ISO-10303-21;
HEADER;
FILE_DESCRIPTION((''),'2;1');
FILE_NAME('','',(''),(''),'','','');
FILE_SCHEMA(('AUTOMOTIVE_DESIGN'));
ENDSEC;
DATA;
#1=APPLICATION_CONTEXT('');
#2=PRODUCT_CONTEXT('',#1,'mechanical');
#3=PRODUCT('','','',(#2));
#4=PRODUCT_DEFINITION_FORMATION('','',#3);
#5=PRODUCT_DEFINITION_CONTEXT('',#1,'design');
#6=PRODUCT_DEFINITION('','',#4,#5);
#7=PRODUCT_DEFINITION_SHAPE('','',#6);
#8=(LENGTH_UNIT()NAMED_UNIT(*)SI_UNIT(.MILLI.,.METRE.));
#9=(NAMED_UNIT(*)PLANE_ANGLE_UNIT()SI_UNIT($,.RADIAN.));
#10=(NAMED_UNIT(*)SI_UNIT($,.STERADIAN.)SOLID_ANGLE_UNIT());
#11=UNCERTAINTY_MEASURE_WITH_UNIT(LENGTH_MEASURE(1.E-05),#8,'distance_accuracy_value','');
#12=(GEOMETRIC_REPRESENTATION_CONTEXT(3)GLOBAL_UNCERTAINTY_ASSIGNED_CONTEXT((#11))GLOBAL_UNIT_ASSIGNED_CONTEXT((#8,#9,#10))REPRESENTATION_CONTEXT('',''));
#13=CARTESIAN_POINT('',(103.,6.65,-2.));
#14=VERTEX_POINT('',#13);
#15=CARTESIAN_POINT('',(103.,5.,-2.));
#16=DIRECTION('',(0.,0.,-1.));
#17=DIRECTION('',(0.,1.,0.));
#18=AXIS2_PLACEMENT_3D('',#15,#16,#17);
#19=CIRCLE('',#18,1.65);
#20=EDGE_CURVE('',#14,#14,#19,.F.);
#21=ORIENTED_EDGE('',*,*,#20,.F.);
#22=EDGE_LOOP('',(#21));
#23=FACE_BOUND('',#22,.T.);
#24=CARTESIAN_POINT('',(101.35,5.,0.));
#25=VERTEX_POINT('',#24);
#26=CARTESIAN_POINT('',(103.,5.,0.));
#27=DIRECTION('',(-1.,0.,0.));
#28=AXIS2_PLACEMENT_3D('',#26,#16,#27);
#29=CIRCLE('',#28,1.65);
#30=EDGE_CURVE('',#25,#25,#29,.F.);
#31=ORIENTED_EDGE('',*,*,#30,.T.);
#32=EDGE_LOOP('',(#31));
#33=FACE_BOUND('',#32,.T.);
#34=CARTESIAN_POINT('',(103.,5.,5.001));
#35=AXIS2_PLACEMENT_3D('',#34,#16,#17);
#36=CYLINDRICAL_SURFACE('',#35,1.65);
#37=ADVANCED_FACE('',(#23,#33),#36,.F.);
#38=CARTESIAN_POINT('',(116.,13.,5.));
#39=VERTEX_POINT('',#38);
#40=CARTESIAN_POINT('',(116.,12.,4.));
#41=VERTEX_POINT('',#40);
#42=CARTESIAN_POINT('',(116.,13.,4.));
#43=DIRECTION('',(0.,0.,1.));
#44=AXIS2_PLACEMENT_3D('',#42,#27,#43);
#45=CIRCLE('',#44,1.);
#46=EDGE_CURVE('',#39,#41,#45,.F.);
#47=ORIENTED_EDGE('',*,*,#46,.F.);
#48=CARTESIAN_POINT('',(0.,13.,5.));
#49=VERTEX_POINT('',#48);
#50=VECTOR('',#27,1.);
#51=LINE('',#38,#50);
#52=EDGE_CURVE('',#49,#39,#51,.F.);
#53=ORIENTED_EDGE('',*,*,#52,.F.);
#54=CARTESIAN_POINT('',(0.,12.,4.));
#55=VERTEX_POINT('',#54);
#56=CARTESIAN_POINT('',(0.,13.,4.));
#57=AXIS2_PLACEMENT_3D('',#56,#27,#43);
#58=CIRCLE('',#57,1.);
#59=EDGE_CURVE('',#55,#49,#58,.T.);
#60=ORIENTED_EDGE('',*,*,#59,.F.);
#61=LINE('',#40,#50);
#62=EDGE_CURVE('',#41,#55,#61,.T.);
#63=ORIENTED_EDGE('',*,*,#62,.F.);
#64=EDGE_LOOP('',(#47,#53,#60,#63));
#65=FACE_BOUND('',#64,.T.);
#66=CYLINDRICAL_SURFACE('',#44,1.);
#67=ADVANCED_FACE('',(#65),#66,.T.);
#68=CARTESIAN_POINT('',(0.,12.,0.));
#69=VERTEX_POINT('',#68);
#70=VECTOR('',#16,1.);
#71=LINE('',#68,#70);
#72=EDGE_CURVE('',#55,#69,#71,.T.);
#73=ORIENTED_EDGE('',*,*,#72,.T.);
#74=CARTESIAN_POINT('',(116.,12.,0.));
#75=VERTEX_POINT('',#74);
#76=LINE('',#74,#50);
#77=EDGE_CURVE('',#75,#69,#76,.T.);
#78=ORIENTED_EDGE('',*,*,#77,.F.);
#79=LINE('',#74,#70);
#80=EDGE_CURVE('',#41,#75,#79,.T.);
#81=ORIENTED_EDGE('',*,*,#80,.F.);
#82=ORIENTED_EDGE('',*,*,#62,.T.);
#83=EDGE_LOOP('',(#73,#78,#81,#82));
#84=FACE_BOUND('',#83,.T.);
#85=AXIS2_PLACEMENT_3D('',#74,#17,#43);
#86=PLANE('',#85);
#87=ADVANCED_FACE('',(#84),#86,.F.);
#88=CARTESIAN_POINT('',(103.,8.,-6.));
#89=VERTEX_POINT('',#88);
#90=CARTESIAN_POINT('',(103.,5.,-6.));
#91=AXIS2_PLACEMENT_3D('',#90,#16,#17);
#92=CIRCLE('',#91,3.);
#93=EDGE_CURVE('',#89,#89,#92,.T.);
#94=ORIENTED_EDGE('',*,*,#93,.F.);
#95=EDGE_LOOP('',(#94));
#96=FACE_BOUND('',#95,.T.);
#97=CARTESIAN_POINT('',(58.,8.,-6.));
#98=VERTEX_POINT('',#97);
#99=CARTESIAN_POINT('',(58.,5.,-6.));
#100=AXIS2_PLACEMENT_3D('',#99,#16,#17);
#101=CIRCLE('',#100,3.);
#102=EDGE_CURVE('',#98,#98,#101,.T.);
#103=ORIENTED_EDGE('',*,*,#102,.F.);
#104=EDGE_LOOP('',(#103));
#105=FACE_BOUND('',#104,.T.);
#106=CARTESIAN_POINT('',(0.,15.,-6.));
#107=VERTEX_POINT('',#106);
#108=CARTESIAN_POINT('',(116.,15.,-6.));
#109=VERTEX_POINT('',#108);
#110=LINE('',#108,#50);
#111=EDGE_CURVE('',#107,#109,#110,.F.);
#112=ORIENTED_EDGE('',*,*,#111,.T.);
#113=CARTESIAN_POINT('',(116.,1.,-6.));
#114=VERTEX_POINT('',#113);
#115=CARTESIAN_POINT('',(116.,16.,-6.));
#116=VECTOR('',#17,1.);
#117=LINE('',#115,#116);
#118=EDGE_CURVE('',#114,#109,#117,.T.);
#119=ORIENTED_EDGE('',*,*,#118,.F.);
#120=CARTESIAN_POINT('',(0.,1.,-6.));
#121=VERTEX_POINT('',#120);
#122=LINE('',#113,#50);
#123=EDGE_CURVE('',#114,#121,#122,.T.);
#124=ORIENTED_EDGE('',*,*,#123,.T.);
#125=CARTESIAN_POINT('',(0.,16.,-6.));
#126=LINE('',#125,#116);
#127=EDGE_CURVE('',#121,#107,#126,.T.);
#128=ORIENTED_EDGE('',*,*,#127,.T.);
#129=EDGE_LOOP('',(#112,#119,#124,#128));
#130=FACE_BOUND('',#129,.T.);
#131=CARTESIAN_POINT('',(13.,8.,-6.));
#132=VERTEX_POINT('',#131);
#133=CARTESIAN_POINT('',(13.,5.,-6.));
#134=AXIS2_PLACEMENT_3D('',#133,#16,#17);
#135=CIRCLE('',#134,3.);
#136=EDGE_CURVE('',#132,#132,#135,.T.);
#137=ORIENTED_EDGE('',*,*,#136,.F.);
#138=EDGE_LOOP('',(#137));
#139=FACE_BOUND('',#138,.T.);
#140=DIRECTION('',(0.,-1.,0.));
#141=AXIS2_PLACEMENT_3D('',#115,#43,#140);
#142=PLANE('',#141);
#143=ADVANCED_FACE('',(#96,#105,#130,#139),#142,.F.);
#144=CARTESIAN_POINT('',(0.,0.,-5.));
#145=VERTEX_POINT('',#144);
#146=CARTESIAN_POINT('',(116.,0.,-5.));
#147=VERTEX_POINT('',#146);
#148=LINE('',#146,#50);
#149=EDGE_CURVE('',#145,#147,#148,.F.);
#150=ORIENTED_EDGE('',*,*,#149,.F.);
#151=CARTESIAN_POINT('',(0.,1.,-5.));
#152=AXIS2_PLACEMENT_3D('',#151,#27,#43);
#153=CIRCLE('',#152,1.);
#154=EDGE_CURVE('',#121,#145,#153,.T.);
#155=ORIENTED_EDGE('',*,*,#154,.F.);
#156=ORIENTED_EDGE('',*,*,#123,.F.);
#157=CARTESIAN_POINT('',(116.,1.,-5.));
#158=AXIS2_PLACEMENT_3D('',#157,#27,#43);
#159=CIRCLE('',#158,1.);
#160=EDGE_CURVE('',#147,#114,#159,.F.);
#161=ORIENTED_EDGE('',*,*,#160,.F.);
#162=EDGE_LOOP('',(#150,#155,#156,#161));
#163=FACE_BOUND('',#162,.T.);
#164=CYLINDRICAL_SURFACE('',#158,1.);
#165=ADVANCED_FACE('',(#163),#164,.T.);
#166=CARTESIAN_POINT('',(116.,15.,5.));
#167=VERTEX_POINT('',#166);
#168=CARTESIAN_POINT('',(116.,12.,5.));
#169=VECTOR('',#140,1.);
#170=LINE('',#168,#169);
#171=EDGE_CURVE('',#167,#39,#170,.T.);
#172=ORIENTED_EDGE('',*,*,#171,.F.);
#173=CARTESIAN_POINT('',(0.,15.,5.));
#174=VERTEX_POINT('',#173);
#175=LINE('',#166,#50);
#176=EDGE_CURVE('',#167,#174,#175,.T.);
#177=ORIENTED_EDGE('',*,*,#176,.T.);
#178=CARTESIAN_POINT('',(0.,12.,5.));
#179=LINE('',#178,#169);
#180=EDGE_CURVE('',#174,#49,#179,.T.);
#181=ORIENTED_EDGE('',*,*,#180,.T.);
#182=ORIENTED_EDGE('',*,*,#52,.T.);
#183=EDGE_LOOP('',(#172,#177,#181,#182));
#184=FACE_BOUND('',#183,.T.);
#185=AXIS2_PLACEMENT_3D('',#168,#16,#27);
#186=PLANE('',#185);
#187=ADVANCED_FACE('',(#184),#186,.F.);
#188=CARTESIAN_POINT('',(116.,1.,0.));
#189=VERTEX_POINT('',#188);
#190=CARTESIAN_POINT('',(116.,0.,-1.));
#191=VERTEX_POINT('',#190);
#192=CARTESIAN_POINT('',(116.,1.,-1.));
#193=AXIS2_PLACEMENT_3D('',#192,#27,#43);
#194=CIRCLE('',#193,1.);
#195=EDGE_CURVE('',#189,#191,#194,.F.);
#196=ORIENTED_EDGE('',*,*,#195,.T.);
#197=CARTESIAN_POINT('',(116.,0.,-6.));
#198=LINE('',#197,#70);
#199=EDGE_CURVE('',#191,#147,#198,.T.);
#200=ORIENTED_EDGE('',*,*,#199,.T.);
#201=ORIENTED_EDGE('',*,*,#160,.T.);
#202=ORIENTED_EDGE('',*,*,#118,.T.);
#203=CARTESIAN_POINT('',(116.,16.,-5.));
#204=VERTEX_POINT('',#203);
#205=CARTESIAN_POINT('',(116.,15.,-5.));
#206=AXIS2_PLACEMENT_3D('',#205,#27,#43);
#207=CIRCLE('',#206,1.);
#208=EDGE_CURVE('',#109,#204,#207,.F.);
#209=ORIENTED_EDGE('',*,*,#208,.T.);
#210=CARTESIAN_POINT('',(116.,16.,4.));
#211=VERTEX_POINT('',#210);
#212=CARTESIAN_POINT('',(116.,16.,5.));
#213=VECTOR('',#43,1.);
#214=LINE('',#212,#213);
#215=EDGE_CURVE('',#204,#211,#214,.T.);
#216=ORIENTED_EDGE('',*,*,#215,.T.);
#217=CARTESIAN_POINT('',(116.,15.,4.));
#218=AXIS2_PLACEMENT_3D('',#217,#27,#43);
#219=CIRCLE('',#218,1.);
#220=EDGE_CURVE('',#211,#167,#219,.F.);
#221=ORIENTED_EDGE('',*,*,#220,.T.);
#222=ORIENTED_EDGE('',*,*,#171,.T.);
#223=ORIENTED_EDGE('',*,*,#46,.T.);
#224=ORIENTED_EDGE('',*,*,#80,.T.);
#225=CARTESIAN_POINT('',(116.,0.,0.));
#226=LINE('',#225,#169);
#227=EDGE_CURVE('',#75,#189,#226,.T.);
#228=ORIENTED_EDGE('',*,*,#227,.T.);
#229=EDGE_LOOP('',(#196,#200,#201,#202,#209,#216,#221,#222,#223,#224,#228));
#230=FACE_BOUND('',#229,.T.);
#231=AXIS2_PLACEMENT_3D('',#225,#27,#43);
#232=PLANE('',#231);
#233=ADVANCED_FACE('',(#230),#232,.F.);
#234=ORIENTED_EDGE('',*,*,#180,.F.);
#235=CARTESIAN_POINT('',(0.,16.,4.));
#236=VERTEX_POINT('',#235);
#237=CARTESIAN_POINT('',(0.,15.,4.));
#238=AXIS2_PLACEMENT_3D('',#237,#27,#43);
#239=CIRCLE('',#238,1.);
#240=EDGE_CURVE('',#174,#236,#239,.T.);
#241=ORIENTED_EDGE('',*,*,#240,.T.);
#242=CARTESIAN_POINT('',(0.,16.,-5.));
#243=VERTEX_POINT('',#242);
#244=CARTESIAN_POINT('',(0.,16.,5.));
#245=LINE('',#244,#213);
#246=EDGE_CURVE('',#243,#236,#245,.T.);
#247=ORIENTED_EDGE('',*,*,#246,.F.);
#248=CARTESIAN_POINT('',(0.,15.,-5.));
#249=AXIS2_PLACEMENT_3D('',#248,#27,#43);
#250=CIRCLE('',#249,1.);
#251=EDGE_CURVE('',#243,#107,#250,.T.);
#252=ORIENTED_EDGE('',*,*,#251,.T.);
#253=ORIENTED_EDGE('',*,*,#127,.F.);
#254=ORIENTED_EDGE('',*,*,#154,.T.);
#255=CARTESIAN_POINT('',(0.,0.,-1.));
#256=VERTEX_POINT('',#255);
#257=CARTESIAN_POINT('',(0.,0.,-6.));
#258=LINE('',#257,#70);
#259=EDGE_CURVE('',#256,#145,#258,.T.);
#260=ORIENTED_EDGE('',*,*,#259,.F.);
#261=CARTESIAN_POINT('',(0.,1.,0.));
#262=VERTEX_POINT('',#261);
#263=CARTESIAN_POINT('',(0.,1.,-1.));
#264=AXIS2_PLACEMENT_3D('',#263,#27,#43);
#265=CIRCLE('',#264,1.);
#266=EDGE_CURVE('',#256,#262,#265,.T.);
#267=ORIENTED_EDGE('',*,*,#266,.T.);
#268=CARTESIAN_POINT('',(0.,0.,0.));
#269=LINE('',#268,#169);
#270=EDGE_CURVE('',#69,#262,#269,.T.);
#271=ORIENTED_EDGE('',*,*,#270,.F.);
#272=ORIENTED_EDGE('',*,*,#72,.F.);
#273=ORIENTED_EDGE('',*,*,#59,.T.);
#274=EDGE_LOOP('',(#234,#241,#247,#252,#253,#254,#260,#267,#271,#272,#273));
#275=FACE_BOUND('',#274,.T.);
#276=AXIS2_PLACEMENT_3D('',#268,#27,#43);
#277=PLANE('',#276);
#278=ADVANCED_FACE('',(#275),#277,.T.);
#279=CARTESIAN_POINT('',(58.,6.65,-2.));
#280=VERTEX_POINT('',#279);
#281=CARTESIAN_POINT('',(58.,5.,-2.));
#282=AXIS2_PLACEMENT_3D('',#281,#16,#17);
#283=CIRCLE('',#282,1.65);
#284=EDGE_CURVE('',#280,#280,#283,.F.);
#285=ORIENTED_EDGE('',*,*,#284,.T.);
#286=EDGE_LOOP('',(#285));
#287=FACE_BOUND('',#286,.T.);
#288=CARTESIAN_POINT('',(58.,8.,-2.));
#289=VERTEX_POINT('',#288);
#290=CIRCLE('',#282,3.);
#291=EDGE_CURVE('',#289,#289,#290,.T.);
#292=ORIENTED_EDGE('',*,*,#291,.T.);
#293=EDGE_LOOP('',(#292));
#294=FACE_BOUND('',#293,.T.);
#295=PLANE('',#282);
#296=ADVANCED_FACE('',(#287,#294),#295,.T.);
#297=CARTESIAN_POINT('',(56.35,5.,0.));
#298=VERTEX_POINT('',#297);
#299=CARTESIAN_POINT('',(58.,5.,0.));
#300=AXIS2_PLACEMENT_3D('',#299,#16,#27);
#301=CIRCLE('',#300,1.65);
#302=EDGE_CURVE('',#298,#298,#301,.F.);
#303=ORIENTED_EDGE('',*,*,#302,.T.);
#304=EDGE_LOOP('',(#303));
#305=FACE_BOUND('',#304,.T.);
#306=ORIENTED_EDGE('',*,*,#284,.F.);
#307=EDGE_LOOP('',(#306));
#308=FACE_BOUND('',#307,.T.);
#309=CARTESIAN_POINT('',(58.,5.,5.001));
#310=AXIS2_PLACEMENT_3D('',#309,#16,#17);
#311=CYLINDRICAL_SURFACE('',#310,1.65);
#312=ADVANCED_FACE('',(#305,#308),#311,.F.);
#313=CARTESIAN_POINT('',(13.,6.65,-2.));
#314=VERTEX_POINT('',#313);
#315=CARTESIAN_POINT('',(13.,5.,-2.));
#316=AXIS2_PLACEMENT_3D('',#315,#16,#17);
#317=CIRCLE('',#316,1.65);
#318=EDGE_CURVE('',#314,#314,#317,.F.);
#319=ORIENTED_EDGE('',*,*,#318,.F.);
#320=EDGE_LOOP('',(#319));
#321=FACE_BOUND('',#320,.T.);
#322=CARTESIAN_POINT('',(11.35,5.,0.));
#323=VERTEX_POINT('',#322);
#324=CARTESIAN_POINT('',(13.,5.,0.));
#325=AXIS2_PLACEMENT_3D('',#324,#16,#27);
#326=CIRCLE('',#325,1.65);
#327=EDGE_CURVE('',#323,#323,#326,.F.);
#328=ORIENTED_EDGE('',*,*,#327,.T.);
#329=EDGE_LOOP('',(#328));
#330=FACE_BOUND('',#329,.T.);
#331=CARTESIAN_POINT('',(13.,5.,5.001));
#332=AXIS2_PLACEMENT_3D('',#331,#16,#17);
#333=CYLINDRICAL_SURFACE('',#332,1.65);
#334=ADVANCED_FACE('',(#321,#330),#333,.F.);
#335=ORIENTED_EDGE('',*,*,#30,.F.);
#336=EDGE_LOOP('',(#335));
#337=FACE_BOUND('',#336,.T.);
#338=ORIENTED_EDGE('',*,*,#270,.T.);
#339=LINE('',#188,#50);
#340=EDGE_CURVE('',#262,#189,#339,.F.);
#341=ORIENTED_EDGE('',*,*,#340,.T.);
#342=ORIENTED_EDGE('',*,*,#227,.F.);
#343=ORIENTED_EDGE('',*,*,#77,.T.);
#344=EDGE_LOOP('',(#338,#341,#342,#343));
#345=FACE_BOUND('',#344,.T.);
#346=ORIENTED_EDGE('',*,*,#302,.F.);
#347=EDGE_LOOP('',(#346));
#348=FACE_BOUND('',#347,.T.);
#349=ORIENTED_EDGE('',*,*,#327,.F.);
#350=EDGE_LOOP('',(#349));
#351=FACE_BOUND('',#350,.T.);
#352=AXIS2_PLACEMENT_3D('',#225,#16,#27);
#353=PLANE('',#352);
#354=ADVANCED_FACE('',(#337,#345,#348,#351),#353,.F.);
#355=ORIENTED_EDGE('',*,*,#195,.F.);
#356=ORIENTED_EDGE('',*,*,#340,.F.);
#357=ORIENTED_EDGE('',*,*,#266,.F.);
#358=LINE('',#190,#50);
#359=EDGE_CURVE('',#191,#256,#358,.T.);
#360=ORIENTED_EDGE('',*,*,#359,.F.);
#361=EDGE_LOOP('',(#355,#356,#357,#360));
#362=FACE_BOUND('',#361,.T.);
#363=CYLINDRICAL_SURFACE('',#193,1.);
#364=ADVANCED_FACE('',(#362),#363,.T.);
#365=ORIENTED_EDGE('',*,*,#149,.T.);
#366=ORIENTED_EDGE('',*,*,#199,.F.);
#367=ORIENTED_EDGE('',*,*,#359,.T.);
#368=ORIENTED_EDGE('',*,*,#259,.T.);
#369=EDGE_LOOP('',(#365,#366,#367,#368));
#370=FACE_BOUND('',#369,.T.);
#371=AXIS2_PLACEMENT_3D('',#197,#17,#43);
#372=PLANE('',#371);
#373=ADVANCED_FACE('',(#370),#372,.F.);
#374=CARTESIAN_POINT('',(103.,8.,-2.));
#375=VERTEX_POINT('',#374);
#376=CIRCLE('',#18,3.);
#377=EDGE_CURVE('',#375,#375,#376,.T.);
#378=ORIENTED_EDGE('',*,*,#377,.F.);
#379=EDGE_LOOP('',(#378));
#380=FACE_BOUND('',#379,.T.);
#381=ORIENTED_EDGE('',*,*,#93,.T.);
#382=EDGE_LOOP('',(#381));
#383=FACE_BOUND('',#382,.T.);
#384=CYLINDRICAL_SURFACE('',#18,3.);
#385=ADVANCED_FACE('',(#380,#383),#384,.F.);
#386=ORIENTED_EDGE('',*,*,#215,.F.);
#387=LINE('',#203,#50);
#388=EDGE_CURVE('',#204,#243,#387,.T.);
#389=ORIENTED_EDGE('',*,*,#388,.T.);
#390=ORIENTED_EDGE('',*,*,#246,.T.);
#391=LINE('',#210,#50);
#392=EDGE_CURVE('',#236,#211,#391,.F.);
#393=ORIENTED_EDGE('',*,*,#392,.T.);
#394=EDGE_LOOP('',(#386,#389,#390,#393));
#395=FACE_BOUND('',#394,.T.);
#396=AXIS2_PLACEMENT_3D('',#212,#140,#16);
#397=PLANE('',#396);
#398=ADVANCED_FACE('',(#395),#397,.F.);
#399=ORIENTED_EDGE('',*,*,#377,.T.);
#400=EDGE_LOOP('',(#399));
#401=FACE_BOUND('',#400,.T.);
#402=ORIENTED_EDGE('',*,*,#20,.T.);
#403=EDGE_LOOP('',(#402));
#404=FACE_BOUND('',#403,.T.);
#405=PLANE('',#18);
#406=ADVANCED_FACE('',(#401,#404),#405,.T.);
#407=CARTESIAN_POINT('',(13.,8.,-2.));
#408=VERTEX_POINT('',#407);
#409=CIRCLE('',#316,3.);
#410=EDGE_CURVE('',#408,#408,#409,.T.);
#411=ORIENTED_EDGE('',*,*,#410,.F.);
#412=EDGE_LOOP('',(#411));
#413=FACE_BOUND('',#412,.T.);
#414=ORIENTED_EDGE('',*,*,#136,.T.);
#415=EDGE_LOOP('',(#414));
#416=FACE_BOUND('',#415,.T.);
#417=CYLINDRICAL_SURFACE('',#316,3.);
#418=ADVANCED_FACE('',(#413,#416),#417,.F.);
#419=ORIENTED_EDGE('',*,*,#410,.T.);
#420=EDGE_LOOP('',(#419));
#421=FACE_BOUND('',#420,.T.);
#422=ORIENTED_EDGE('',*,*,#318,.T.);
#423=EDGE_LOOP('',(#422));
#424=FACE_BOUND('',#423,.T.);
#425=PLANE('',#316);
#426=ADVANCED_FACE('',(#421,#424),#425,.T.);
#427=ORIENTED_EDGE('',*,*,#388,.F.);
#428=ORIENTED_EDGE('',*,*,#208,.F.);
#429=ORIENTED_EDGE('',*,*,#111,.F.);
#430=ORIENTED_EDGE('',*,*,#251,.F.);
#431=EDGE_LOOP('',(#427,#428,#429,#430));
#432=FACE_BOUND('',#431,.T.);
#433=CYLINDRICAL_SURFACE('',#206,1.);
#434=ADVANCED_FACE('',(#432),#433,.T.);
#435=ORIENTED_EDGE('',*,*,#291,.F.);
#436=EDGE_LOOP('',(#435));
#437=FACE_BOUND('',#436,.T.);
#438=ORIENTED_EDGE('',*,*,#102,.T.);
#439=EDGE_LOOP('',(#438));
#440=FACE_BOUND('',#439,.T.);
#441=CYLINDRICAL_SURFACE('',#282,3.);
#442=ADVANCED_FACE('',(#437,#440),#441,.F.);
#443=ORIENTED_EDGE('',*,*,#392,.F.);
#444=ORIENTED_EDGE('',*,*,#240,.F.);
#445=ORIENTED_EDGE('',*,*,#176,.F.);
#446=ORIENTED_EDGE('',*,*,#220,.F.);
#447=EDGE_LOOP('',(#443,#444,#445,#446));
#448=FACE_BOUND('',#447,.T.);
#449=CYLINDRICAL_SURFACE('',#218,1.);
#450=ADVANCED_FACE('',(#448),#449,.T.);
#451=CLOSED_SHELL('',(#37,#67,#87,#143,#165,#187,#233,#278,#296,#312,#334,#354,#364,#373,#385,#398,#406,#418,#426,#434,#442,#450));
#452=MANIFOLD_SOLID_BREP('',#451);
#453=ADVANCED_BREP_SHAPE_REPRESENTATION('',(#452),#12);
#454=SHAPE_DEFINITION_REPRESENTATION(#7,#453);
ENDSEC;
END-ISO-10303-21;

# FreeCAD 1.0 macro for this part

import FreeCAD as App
import Part
import Sketcher

V = App.Vector


def edges_at(feature, points):
    """Names of the edges that pass closest to the given points."""
    edges = feature.Shape.Edges
    near = lambda p: min(range(len(edges)), key=lambda i: edges[i].distToShape(Part.Vertex(*p))[0])
    return sorted({f"Edge{near(p) + 1}" for p in points})


def add_polygon(sketch, points):
    """Adds a closed chain of lines whose ends are joined by coincident constraints."""
    first, n = sketch.GeometryCount, len(points)
    for a, b in zip(points, points[1:] + points[:1]):
        sketch.addGeometry(Part.LineSegment(App.Vector(*a, 0), App.Vector(*b, 0)), False)
    for i in range(n):
        sketch.addConstraint(Sketcher.Constraint("Coincident", first + i, 2, first + (i + 1) % n, 1))

doc = App.newDocument("Part")
body = doc.addObject("PartDesign::Body", "Body")

# Sketch on YZ plane
sketch1 = body.newObject("Sketcher::SketchObject", "Sketch")
sketch1.AttachmentSupport = (doc.getObject("YZ_Plane"), [""])
sketch1.MapMode = "FlatFace"
add_polygon(sketch1, [(12, 0), (0, 0), (0, -6), (16, -6), (16, 5), (12, 5)])  # lines 0-5
sketch1.addConstraint([
    Sketcher.Constraint("Horizontal", 0),
    Sketcher.Constraint("Vertical", 1),
    Sketcher.Constraint("Horizontal", 2),
    Sketcher.Constraint("Vertical", 3),
    Sketcher.Constraint("Horizontal", 4),
    Sketcher.Constraint("Vertical", 5),
    Sketcher.Constraint("Coincident", 0, 2, -1, 1),
    Sketcher.Constraint("DistanceX", 0, 2, 0, 1, 12.0),
    Sketcher.Constraint("DistanceX", 2, 1, 2, 2, 16.0),
    Sketcher.Constraint("DistanceY", 1, 2, 1, 1, 6.0),
    Sketcher.Constraint("DistanceY", 3, 1, 3, 2, 11.0),
])
pad1 = body.newObject("PartDesign::Pad", "Pad")
pad1.Profile = sketch1
pad1.Length = 116

# Sketch on XY plane
sketch2 = body.newObject("Sketcher::SketchObject", "Sketch001")
sketch2.AttachmentSupport = (doc.getObject("XY_Plane"), [""])
sketch2.MapMode = "FlatFace"
sketch2.AttachmentOffset = App.Placement(V(0, 0, -6), App.Rotation())
sketch2.addGeometry(Part.Circle(V(103, 5, 0), V(0, 0, 1), 1.65), False)
sketch2.addConstraint([
    Sketcher.Constraint("Diameter", 0, 3.3),
    Sketcher.Constraint("DistanceX", -1, 1, 0, 3, 103.0),
    Sketcher.Constraint("DistanceY", -1, 1, 0, 3, 5.0),
])
pocket1 = body.newObject("PartDesign::Pocket", "Pocket")
pocket1.Profile = sketch2
pocket1.Type = "UpToFirst"
pocket1.Reversed = True

# Sketch on XY plane
sketch3 = body.newObject("Sketcher::SketchObject", "Sketch002")
sketch3.AttachmentSupport = (doc.getObject("XY_Plane"), [""])
sketch3.MapMode = "FlatFace"
sketch3.AttachmentOffset = App.Placement(V(0, 0, -6), App.Rotation())
sketch3.addGeometry(Part.Circle(V(13, 5, 0), V(0, 0, 1), 1.65), False)
sketch3.addConstraint([
    Sketcher.Constraint("Diameter", 0, 3.3),
    Sketcher.Constraint("DistanceX", -1, 1, 0, 3, 13.0),
    Sketcher.Constraint("DistanceY", -1, 1, 0, 3, 5.0),
])
pocket2 = body.newObject("PartDesign::Pocket", "Pocket001")
pocket2.Profile = sketch3
pocket2.Type = "UpToFirst"
pocket2.Reversed = True

# Sketch on XY plane
sketch4 = body.newObject("Sketcher::SketchObject", "Sketch003")
sketch4.AttachmentSupport = (doc.getObject("XY_Plane"), [""])
sketch4.MapMode = "FlatFace"
sketch4.AttachmentOffset = App.Placement(V(0, 0, -6), App.Rotation())
sketch4.addGeometry(Part.Circle(V(58, 5, 0), V(0, 0, 1), 1.65), False)
sketch4.addConstraint([
    Sketcher.Constraint("Diameter", 0, 3.3),
    Sketcher.Constraint("DistanceX", -1, 1, 0, 3, 58.0),
    Sketcher.Constraint("DistanceY", -1, 1, 0, 3, 5.0),
])
pocket3 = body.newObject("PartDesign::Pocket", "Pocket002")
pocket3.Profile = sketch4
pocket3.Type = "UpToFirst"
pocket3.Reversed = True

# Sketch on XY plane
sketch5 = body.newObject("Sketcher::SketchObject", "Sketch004")
sketch5.AttachmentSupport = (doc.getObject("XY_Plane"), [""])
sketch5.MapMode = "FlatFace"
sketch5.AttachmentOffset = App.Placement(V(0, 0, -6), App.Rotation())
sketch5.addGeometry([
    Part.Circle(V(103, 5, 0), V(0, 0, 1), 3),
    Part.Circle(V(58, 5, 0), V(0, 0, 1), 3),
    Part.Circle(V(13, 5, 0), V(0, 0, 1), 3),
], False)
sketch5.addConstraint([
    Sketcher.Constraint("Equal", 0, 1),
    Sketcher.Constraint("Equal", 1, 2),
    Sketcher.Constraint("Horizontal", 0, 3, 1, 3),
    Sketcher.Constraint("Horizontal", 1, 3, 2, 3),
    Sketcher.Constraint("Diameter", 0, 6.0),
    Sketcher.Constraint("DistanceX", -1, 1, 0, 3, 103.0),
    Sketcher.Constraint("DistanceY", -1, 1, 0, 3, 5.0),
    Sketcher.Constraint("DistanceX", -1, 1, 1, 3, 58.0),
    Sketcher.Constraint("DistanceX", -1, 1, 2, 3, 13.0),
])
pocket4 = body.newObject("PartDesign::Pocket", "Pocket003")
pocket4.Profile = sketch5
pocket4.Length = 4
pocket4.Reversed = True
doc.recompute()

fillet = body.newObject("PartDesign::Fillet", "Fillet")
fillet.Base = (pocket4, edges_at(pocket4, [
    (58, 0, 0),
    (58, 12, 5),
    (58, 16, 5),
    (58, 16, -6),
    (58, 0, -6),
]))
fillet.Radius = 1

doc.recompute()
